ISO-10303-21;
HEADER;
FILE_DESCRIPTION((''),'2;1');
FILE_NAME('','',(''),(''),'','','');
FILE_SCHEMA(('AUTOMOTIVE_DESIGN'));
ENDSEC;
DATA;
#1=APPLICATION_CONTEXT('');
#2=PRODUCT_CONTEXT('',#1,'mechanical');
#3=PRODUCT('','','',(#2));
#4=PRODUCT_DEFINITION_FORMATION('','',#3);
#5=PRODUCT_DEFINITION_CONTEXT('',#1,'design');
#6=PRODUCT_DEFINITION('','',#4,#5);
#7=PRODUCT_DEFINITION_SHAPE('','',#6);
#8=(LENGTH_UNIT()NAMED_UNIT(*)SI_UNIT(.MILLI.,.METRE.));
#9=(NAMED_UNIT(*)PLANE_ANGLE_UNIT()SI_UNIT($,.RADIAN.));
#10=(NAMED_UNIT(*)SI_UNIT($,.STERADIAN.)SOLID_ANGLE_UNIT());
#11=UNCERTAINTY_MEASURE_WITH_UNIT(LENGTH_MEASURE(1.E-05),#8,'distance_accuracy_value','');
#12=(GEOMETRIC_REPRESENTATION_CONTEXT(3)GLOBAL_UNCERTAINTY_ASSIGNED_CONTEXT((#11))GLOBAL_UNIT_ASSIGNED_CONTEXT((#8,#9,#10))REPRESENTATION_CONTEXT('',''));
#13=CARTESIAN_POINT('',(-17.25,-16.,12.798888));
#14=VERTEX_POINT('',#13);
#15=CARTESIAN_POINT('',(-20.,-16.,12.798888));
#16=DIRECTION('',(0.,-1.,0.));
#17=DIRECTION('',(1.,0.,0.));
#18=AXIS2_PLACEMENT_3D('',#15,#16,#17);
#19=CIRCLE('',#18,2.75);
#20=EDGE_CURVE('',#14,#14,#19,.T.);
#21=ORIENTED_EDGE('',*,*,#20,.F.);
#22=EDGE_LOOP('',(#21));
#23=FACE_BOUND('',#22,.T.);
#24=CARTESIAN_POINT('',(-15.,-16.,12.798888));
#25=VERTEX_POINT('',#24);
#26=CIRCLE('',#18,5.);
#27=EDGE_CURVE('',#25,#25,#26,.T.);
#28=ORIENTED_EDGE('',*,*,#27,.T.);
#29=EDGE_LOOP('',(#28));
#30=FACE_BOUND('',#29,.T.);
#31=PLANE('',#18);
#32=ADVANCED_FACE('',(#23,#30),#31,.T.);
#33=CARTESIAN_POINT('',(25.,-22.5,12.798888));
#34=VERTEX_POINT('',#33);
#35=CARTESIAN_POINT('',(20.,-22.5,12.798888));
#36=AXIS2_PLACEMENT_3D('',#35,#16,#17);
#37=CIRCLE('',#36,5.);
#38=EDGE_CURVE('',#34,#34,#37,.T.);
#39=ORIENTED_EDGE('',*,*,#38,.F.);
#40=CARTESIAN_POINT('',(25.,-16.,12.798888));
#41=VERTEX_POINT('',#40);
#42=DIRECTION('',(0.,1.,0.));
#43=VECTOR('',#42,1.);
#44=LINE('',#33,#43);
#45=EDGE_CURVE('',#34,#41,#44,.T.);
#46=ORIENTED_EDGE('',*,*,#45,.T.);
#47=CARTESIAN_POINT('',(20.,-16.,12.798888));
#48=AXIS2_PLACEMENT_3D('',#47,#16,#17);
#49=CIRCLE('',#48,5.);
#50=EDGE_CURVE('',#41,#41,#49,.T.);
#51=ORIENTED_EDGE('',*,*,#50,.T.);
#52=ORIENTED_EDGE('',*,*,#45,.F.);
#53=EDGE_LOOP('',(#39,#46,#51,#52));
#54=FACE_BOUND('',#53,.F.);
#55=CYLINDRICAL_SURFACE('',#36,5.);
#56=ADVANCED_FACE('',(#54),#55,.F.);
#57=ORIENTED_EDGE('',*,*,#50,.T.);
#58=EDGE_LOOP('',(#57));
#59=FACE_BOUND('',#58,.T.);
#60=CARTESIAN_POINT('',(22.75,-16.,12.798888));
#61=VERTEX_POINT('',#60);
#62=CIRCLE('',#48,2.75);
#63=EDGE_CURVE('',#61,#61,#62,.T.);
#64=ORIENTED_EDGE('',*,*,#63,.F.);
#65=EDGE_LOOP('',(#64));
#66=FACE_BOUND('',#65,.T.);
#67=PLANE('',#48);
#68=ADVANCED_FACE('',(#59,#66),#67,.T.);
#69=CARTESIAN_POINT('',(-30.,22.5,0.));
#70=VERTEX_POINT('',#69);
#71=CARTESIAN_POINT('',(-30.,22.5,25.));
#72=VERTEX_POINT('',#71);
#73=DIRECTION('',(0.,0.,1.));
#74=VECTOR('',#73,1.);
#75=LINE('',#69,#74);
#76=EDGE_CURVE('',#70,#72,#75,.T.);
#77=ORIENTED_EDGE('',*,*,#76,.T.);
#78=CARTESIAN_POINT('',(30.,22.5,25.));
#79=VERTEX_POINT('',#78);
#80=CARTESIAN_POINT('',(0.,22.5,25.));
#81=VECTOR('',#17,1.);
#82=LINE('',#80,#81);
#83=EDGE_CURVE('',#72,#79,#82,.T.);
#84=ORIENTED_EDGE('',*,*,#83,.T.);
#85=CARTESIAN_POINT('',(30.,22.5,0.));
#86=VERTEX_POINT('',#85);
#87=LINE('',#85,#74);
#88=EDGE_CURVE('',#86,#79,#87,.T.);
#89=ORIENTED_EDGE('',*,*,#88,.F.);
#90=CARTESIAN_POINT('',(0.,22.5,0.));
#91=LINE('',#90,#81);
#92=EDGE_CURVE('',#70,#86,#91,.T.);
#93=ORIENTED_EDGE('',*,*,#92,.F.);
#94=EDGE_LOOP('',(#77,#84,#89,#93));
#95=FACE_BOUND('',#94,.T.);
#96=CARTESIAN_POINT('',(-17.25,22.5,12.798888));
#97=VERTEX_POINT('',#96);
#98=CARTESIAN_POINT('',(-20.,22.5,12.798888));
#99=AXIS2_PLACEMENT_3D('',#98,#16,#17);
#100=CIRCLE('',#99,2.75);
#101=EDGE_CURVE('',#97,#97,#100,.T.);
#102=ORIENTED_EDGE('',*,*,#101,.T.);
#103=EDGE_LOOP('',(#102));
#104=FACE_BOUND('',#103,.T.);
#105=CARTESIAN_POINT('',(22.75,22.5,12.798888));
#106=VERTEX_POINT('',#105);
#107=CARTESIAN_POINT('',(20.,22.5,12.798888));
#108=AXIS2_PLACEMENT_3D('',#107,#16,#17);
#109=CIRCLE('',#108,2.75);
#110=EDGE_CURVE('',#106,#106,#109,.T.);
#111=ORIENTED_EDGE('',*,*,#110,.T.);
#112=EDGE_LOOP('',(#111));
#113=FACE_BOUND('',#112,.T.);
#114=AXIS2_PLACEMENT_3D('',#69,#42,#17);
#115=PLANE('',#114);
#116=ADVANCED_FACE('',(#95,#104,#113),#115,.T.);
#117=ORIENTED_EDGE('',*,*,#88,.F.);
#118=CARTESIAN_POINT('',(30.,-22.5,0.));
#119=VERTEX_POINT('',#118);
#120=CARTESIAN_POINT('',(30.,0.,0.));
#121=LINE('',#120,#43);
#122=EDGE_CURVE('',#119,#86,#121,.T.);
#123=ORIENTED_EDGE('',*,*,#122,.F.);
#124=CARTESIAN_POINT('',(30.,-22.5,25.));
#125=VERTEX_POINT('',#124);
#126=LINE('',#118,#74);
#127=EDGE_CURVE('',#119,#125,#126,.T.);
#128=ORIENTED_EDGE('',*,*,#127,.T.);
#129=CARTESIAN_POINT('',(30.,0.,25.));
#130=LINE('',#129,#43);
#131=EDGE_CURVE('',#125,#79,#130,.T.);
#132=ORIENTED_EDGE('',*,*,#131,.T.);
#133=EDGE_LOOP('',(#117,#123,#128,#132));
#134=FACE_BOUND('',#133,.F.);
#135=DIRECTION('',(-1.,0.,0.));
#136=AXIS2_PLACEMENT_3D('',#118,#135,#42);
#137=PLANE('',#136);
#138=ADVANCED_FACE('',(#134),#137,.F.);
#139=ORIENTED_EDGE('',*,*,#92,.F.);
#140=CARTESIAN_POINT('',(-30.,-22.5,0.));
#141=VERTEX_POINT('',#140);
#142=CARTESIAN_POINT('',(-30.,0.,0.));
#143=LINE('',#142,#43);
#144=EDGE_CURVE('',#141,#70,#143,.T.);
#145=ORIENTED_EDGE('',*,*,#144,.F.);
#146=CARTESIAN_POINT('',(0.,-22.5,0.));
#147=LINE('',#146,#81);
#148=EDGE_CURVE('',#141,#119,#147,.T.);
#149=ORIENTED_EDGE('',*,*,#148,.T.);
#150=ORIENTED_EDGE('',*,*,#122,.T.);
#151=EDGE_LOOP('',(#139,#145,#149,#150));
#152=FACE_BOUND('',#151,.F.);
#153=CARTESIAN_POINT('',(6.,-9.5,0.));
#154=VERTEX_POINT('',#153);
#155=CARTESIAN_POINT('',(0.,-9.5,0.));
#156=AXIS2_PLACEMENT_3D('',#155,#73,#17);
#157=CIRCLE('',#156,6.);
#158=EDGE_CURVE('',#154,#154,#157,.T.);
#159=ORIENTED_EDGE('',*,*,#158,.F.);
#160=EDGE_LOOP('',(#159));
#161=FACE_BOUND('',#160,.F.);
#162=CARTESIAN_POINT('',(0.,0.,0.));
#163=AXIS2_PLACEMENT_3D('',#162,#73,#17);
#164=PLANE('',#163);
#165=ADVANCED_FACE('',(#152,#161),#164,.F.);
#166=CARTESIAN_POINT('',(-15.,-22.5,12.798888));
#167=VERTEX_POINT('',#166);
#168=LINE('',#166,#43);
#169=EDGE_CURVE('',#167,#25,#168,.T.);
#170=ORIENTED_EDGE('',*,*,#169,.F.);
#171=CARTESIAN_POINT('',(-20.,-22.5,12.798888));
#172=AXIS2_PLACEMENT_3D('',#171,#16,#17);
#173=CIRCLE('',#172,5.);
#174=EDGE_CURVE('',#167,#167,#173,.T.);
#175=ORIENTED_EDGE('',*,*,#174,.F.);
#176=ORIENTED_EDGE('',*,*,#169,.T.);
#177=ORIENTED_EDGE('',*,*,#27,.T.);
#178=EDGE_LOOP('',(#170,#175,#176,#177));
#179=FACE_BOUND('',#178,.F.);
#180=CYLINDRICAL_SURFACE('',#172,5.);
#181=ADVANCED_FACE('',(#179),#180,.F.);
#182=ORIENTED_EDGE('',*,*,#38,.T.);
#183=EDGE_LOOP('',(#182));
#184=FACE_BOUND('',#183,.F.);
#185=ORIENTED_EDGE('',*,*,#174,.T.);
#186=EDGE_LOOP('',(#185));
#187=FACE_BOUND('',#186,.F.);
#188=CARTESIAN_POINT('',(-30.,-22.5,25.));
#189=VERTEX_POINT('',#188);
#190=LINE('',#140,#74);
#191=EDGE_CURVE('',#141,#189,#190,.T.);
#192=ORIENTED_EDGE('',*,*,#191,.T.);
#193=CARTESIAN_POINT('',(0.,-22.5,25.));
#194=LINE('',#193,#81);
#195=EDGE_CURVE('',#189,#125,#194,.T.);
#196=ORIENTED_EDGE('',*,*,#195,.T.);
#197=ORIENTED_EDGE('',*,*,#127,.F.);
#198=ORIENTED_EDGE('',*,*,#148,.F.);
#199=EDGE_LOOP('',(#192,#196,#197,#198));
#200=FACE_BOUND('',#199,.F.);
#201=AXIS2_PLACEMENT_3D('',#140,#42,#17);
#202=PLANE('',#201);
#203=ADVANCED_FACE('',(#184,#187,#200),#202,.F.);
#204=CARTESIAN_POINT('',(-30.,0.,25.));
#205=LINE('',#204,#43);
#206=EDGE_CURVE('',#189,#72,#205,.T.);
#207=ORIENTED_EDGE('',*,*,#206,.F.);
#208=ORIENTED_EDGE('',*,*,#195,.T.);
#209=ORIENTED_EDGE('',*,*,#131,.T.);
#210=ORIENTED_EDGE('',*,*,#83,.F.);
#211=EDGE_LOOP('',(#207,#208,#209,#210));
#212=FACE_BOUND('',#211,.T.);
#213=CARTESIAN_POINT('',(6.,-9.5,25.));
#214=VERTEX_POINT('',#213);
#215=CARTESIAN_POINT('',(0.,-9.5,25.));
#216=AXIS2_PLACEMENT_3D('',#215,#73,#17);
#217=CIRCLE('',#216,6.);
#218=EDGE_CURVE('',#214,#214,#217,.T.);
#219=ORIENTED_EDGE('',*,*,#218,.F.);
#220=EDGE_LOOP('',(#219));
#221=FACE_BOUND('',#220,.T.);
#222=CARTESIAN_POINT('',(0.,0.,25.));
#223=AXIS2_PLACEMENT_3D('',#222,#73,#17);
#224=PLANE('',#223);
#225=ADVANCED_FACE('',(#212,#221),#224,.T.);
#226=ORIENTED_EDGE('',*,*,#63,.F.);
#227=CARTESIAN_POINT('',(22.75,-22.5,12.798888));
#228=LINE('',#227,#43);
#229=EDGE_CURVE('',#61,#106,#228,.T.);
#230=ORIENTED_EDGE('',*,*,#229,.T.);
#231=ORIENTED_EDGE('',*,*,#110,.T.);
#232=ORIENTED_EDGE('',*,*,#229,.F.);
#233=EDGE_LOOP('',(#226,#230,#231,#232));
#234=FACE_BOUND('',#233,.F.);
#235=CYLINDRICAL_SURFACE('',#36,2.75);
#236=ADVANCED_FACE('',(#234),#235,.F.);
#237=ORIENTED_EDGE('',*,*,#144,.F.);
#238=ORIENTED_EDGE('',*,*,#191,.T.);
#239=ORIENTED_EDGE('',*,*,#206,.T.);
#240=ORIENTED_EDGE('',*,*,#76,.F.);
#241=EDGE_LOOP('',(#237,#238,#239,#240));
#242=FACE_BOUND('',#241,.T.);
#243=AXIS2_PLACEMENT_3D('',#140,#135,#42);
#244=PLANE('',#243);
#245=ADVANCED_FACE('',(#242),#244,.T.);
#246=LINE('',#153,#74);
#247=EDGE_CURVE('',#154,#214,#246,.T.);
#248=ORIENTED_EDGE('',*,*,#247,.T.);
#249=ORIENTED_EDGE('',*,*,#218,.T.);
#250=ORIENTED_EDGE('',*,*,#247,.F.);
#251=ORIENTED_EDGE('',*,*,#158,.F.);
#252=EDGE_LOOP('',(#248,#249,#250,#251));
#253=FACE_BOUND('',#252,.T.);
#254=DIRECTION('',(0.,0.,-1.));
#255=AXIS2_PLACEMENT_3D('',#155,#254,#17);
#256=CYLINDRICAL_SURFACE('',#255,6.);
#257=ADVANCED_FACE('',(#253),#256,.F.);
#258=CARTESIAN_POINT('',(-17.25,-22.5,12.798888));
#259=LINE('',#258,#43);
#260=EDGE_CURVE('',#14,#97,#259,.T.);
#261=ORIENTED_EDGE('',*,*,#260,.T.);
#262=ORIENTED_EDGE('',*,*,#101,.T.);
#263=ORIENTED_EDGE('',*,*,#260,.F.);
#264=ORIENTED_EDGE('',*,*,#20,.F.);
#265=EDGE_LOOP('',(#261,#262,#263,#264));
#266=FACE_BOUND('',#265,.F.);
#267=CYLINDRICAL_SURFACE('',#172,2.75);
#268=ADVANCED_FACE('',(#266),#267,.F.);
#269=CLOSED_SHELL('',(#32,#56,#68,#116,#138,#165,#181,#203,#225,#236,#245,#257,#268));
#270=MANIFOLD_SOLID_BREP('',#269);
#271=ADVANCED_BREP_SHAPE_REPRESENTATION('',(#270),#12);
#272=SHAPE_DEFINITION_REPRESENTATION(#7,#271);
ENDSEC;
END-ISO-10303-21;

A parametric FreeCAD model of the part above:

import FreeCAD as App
import Part
import Sketcher
from FreeCAD import Vector
Q = App.Units.Quantity

doc = App.newDocument("Part")
body = doc.addObject("PartDesign::Body", "Body")

sketch1 = doc.addObject("Sketcher::SketchObject", "Sketch")
body.addObject(sketch1)
sketch1.AttachmentSupport = (doc.XY_Plane, [""])
sketch1.MapMode = "FlatFace"
sketch1.addGeometry([
    Part.LineSegment(Vector(-30, 22, 0), Vector(-30, -22, 0)),
    Part.LineSegment(Vector(-30, -22, 0), Vector(30, -22, 0)),
    Part.LineSegment(Vector(30, -22, 0), Vector(30, 22, 0)),
    Part.LineSegment(Vector(30, 22, 0), Vector(-30, 22, 0)),
    Part.Circle(Vector(0, -10, 0), Vector(0, 0, 1), 6),
], False)
sketch1.addConstraint([
    Sketcher.Constraint("Coincident", 0, 2, 1, 1),
    Sketcher.Constraint("Coincident", 1, 2, 2, 1),
    Sketcher.Constraint("Coincident", 2, 2, 3, 1),
    Sketcher.Constraint("Coincident", 3, 2, 0, 1),
    Sketcher.Constraint("Vertical", 0),
    Sketcher.Constraint("Horizontal", 1),
    Sketcher.Constraint("Vertical", 2),
    Sketcher.Constraint("Horizontal", 3),
    Sketcher.Constraint("Symmetric", 0, 2, 2, 2, -1, 1),
    Sketcher.Constraint("PointOnObject", 4, 3, -2),
    Sketcher.Constraint("Diameter", 4, Q("12 mm")),
    Sketcher.Constraint("DistanceX", 1, 1, 1, 2, Q("60 mm")),
    Sketcher.Constraint("DistanceY", 0, 2, 0, 1, Q("45 mm")),
    Sketcher.Constraint("DistanceY", 0, 2, 4, 3, Q("13 mm")),
])
pad1 = doc.addObject("PartDesign::Pad", "Pad")
body.addObject(pad1)
pad1.Profile = sketch1
pad1.Length = 25

sketch2 = doc.addObject("Sketcher::SketchObject", "Sketch001")
body.addObject(sketch2)
sketch2.AttachmentSupport = (doc.XZ_Plane, [""])
sketch2.MapMode = "FlatFace"
sketch2.AttachmentOffset = App.Placement(Vector(0, 0, 22.5), App.Rotation())
sketch2.addGeometry([
    Part.Circle(Vector(-20, 12.8, 0), Vector(0, 0, 1), 2.8),
    Part.Circle(Vector(20, 12.8, 0), Vector(0, 0, 1), 2.8),
], False)
sketch2.addConstraint([
    Sketcher.Constraint("Equal", 0, 1),
    Sketcher.Constraint("Symmetric", 0, 3, 1, 3, -2),
    Sketcher.Constraint("Diameter", 0, Q("5.5 mm")),
    Sketcher.Constraint("DistanceX", 0, 3, -1, 1, Q("20 mm")),
    Sketcher.Constraint("DistanceY", -1, 1, 0, 3, Q("12.798888 mm")),
])
pocket1 = doc.addObject("PartDesign::Pocket", "Pocket")
body.addObject(pocket1)
pocket1.Profile = sketch2
pocket1.Length = 45

sketch3 = doc.addObject("Sketcher::SketchObject", "Sketch002")
body.addObject(sketch3)
sketch3.AttachmentSupport = (doc.XZ_Plane, [""])
sketch3.MapMode = "FlatFace"
sketch3.AttachmentOffset = App.Placement(Vector(0, 0, 22.5), App.Rotation())
sketch3.addGeometry([
    Part.Circle(Vector(-20, 12.8, 0), Vector(0, 0, 1), 5),
    Part.Circle(Vector(-20, 12.8, 0), Vector(0, 0, 1), 2.8),
    Part.Circle(Vector(20, 12.8, 0), Vector(0, 0, 1), 5),
    Part.Circle(Vector(20, 12.8, 0), Vector(0, 0, 1), 2.8),
], False)
sketch3.addConstraint([
    Sketcher.Constraint("Coincident", 1, 3, 0, 3),
    Sketcher.Constraint("Coincident", 3, 3, 2, 3),
    Sketcher.Constraint("Equal", 0, 2),
    Sketcher.Constraint("Equal", 1, 3),
    Sketcher.Constraint("Symmetric", 0, 3, 2, 3, -2),
    Sketcher.Constraint("Diameter", 0, Q("10 mm")),
    Sketcher.Constraint("Diameter", 1, Q("5.5 mm")),
    Sketcher.Constraint("DistanceX", 0, 3, -1, 1, Q("20 mm")),
    Sketcher.Constraint("DistanceY", -1, 1, 0, 3, Q("12.798888 mm")),
])
pocket2 = doc.addObject("PartDesign::Pocket", "Pocket001")
body.addObject(pocket2)
pocket2.Profile = sketch3
pocket2.Length = 6.5

doc.recompute()
